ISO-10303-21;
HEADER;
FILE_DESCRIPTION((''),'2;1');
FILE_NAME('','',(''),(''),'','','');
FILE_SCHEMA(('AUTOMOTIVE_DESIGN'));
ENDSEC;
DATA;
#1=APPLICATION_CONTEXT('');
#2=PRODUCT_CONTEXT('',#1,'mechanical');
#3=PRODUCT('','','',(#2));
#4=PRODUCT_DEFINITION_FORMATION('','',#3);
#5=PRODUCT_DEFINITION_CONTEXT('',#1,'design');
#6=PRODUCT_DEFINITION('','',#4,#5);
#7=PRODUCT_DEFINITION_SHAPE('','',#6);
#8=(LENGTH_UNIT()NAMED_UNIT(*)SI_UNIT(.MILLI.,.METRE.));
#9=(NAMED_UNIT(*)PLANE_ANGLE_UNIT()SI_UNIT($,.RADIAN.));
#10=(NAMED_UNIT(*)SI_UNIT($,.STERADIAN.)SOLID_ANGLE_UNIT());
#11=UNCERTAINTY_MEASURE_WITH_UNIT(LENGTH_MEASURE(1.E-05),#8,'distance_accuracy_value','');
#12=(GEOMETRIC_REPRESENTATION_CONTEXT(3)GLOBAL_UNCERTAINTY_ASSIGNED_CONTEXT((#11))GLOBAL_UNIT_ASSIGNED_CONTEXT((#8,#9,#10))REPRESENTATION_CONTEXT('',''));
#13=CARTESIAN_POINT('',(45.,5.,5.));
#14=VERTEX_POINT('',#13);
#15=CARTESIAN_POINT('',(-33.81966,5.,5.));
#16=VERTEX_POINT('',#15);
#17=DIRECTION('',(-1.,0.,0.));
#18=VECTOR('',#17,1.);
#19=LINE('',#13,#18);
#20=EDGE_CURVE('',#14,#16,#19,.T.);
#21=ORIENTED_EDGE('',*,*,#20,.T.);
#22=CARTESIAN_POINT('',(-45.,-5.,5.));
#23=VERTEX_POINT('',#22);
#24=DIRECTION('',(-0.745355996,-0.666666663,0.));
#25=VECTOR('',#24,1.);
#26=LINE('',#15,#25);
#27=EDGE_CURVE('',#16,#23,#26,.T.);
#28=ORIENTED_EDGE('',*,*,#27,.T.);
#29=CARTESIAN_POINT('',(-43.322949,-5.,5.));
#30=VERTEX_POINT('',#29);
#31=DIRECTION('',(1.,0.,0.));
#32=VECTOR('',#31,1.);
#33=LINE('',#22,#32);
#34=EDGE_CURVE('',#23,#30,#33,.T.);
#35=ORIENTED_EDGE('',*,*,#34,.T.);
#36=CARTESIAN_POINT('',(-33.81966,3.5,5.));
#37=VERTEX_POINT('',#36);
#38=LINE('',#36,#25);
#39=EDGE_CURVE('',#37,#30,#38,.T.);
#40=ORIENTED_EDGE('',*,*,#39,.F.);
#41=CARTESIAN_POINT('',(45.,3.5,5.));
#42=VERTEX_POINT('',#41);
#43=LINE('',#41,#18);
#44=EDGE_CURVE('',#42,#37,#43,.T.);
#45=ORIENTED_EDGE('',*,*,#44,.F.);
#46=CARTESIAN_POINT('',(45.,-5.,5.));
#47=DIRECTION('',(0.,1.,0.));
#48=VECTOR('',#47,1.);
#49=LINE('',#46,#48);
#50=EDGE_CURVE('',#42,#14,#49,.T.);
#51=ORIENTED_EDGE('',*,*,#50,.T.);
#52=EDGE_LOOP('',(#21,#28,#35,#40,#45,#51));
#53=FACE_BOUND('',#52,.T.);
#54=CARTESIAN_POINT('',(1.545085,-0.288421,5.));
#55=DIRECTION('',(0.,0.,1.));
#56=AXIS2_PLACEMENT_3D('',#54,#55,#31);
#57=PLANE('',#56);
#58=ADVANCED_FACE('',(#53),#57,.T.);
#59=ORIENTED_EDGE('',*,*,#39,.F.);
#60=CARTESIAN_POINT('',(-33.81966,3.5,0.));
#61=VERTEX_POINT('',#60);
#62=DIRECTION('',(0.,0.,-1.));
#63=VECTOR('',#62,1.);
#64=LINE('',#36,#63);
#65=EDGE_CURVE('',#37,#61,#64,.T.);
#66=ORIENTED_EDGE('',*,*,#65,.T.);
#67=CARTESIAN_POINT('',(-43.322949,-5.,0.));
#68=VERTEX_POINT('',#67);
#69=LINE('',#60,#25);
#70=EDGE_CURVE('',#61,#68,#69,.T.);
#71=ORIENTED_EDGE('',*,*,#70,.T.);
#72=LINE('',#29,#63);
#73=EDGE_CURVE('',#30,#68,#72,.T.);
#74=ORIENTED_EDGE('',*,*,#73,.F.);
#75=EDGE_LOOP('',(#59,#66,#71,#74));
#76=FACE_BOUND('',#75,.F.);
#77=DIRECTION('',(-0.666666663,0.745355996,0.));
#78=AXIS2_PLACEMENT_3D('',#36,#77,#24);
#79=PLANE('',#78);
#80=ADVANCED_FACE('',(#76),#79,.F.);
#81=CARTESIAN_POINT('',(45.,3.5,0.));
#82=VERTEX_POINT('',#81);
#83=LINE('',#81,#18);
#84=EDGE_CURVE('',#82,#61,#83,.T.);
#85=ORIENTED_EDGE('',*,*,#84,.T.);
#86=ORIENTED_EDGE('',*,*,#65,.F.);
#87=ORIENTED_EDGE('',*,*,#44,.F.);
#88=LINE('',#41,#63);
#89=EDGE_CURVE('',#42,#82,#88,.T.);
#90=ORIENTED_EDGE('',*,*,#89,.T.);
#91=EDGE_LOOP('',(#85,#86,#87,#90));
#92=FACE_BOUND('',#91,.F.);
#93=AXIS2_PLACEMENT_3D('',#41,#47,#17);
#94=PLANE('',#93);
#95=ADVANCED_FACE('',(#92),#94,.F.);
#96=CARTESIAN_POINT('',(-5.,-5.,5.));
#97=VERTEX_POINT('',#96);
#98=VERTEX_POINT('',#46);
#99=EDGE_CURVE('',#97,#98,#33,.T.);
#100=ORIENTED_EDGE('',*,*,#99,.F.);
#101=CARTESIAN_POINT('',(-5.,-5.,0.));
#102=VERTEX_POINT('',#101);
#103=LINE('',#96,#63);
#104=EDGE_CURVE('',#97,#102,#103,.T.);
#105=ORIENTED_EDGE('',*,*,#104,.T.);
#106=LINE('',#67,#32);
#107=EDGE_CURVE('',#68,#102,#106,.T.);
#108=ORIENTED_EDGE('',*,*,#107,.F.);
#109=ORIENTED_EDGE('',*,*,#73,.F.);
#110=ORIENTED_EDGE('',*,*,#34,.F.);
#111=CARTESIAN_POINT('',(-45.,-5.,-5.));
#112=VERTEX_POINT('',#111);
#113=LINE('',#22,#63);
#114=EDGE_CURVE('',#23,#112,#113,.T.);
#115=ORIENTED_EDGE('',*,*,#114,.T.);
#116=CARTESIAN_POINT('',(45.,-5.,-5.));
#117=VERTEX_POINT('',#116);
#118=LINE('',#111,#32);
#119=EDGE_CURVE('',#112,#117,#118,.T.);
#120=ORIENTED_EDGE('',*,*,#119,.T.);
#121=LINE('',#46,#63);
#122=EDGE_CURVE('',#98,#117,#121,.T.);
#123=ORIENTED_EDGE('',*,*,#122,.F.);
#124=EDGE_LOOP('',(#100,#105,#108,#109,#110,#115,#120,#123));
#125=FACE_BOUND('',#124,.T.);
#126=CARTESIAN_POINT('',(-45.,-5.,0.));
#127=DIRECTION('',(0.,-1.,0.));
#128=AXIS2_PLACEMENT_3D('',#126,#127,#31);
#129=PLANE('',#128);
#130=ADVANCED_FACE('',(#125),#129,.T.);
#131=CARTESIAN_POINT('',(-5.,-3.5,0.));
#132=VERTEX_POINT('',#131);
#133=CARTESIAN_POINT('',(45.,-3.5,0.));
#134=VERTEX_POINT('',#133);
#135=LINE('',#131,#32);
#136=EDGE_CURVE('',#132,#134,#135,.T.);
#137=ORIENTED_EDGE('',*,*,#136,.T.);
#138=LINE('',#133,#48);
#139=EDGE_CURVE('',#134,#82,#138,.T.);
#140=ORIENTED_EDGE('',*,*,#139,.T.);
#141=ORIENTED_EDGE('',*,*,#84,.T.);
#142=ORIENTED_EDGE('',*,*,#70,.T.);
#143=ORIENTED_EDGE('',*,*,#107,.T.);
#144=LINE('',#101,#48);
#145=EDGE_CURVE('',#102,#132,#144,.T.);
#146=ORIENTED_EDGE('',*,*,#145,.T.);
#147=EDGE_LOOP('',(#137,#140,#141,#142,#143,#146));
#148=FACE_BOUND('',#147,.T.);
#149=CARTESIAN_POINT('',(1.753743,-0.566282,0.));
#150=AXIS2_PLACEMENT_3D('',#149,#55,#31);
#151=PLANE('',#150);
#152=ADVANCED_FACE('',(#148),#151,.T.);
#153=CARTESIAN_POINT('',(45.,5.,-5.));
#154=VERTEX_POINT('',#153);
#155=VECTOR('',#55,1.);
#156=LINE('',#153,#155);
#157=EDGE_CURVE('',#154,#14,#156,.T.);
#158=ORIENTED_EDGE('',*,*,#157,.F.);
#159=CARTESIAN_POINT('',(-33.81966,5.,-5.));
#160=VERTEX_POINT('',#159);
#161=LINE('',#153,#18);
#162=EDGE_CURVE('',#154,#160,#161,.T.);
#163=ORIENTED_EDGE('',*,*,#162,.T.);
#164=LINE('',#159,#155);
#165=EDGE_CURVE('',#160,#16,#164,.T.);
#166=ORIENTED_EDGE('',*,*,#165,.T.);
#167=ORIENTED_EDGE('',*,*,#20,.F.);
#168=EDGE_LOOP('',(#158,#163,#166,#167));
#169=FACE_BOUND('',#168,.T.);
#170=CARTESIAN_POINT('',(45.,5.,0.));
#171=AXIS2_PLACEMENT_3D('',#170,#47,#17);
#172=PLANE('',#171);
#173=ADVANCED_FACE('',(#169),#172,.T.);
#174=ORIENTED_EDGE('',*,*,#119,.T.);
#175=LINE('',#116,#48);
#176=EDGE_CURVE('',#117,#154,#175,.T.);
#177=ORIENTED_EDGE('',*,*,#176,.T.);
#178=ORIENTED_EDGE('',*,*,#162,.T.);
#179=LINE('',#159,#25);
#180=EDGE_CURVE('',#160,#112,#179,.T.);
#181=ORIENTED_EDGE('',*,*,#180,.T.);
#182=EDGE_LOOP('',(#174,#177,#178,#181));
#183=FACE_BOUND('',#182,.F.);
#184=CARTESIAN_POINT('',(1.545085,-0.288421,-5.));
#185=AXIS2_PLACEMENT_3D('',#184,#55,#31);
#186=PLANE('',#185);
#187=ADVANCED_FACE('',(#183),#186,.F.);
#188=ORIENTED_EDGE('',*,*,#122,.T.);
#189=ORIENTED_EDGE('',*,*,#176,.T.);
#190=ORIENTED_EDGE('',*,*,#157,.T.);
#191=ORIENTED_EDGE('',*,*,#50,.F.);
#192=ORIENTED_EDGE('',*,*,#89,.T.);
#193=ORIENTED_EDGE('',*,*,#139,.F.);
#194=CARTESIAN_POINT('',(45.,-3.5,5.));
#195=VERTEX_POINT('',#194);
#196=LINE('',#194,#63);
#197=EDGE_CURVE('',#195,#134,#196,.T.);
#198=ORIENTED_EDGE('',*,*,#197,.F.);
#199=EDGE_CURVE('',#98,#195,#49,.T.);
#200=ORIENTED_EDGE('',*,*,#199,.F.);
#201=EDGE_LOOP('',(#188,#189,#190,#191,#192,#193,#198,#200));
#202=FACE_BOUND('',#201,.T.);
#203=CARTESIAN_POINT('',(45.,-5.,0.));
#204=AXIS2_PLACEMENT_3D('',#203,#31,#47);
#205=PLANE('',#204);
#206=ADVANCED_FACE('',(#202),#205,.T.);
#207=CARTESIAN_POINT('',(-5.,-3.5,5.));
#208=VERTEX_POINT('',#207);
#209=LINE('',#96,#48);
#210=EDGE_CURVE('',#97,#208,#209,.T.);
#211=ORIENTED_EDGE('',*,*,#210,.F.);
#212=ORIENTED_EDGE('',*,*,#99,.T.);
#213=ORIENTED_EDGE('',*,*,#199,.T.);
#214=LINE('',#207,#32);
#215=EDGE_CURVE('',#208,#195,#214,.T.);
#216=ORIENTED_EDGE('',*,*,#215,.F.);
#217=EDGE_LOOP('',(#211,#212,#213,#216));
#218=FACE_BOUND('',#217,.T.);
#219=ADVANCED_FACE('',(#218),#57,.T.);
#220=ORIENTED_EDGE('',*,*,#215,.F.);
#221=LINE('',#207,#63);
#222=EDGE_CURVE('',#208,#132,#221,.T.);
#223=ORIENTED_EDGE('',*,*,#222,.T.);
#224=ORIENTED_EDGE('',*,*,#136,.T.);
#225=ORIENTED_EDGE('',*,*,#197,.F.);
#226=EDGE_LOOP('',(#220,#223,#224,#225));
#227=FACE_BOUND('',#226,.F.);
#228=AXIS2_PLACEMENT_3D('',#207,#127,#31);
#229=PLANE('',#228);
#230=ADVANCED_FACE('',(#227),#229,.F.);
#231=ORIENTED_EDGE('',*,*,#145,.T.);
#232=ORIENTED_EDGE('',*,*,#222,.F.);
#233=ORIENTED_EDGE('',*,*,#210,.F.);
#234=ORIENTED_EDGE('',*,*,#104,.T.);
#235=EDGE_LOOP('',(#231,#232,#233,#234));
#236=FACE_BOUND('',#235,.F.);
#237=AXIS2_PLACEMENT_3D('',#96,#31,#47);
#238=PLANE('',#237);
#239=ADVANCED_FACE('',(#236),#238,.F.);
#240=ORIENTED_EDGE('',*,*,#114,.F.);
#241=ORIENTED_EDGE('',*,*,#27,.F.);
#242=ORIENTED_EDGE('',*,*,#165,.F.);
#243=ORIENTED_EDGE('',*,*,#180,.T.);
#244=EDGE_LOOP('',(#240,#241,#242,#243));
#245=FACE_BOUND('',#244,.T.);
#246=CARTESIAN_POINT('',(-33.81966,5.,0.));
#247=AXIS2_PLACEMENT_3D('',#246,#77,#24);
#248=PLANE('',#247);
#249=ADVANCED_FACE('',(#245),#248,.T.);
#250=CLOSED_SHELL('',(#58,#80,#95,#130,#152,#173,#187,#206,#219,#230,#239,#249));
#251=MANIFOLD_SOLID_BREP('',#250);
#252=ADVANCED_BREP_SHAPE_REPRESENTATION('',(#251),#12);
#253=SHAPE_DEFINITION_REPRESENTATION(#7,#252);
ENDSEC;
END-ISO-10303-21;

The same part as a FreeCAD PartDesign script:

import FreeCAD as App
import Part
import Sketcher
from FreeCAD import Vector


def add_polygon(sketch, points):
    """Adds a closed chain of lines whose ends are joined by coincident constraints."""
    first, n = sketch.GeometryCount, len(points)
    for a, b in zip(points, points[1:] + points[:1]):
        sketch.addGeometry(Part.LineSegment(App.Vector(*a, 0), App.Vector(*b, 0)), False)
    for i in range(n):
        sketch.addConstraint(Sketcher.Constraint("Coincident", first + i, 2, first + (i + 1) % n, 1))

doc = App.newDocument("Part")
body = doc.addObject("PartDesign::Body", "Body")

# Sketch on XY plane
sketch1 = body.newObject("Sketcher::SketchObject", "Sketch")
sketch1.AttachmentSupport = (doc.getObject("XY_Plane"), [""])
sketch1.MapMode = "FlatFace"
add_polygon(sketch1, [(45, -5), (45, 5), (-34, 5), (-45, -5)])  # lines 0-3
sketch1.addConstraint([
    Sketcher.Constraint("Vertical", 0),
    Sketcher.Constraint("Horizontal", 1),
    Sketcher.Constraint("Horizontal", 3),
    Sketcher.Constraint("Symmetric", 0, 2, 2, 2, -1, 1),
    Sketcher.Constraint("DistanceX", 3, 1, 3, 2, 90.0),
    Sketcher.Constraint("DistanceY", 0, 1, 0, 2, 10.0),
    Sketcher.Constraint("Distance", 2, 15.0),
])
pad1 = body.newObject("PartDesign::Pad", "Pad")
pad1.Profile = sketch1
pad1.Length = 10
pad1.Midplane = True

# Sketch on XY plane
sketch2 = body.newObject("Sketcher::SketchObject", "Sketch001")
sketch2.AttachmentSupport = (doc.getObject("XY_Plane"), [""])
sketch2.MapMode = "FlatFace"
sketch2.AttachmentOffset = App.Placement(Vector(0, 0, 5), App.Rotation())
add_polygon(sketch2, [(-33.8, 3.5), (-43.3, -5), (-5, -5), (-5, -3.5), (45, -3.5), (45, 3.5)])  # lines 0-5
sketch2.addConstraint([
    Sketcher.Constraint("Horizontal", 1),
    Sketcher.Constraint("Vertical", 2),
    Sketcher.Constraint("Horizontal", 3),
    Sketcher.Constraint("Vertical", 4),
    Sketcher.Constraint("Horizontal", 5),
    Sketcher.Constraint("DistanceX", 3, 1, 3, 2, 50.0),
    Sketcher.Constraint("DistanceY", 4, 1, 4, 2, 7.0),
    Sketcher.Constraint("DistanceY", 2, 1, 2, 2, 1.5),
    Sketcher.Constraint("DistanceY", 0, 2, -1, 1, 5.0),
    Sketcher.Constraint("DistanceX", 1, 2, -1, 1, 5.0),
    Sketcher.Constraint("Distance", 0, 12.75),
    Sketcher.Constraint("DistanceX", 1, 1, 1, 2, 38.322949),
])
pocket1 = body.newObject("PartDesign::Pocket", "Pocket")
pocket1.Profile = sketch2
pocket1.Length = 5

doc.recompute()
